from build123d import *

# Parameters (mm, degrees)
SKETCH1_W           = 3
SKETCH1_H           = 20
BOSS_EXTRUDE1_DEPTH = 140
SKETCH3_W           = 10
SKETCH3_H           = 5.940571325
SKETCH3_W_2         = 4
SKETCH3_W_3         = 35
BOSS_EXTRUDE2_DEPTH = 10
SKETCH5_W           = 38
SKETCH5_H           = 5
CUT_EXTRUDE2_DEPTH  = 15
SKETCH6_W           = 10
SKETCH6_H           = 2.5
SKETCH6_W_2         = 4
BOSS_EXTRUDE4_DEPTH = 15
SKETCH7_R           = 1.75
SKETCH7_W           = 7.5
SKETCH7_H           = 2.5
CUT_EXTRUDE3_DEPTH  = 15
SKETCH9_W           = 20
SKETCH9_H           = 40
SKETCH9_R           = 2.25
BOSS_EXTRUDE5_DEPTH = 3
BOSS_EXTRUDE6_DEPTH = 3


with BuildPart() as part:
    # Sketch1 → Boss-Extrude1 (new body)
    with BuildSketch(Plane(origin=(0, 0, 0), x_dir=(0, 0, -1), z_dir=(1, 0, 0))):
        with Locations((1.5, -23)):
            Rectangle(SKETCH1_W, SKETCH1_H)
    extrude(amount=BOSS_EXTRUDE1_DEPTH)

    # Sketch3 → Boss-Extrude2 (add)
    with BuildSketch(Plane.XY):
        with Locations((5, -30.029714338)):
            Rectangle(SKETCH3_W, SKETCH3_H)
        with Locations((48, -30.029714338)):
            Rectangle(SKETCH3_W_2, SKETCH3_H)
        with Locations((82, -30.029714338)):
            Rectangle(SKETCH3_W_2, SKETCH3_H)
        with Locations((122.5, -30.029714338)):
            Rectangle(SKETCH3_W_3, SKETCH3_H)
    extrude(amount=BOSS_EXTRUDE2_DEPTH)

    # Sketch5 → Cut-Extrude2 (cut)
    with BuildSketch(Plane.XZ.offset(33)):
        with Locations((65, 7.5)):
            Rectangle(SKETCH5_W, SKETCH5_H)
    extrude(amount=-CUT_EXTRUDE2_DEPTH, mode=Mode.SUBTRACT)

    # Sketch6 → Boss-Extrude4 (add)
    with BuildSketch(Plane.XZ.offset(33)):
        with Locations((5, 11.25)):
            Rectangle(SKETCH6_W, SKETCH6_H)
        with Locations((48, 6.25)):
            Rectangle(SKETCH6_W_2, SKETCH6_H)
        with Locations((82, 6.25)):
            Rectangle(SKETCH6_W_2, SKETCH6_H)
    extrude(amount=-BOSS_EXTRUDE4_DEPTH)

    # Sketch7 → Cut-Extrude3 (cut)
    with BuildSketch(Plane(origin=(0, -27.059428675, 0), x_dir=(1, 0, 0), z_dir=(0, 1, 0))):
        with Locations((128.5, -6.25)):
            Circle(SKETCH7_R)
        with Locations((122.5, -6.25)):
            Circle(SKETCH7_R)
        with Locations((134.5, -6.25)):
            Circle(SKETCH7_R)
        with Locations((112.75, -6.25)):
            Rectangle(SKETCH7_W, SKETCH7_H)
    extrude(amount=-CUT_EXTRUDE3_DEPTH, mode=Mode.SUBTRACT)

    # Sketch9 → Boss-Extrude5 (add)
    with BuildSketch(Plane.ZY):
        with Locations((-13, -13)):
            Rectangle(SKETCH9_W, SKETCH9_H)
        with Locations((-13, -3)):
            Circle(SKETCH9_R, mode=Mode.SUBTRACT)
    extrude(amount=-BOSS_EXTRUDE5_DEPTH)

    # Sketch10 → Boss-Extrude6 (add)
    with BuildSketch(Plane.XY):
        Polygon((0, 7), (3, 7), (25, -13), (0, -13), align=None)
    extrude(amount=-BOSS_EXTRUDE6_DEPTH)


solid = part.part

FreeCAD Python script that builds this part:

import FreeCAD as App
import Part
import Sketcher

V = App.Vector
Q = App.Units.Quantity

doc = App.newDocument("Part")
params = doc.addObject("Spreadsheet::Sheet", "Params")
for row, (alias, value) in enumerate([
    ("sketch1_width", "20 mm"),
    ("sketch1_height", "3 mm"),
    ("pad1_length", "140 mm"),
    ("sketch2_width", "10 mm"),
    ("sketch2_width2", "4 mm"),
    ("sketch2_width3", "35 mm"),
    ("pad2_length", "10 mm"),
    ("sketch3_width", "38 mm"),
    ("sketch3_height", "5 mm"),
    ("pocket1_length", "15 mm"),
    ("sketch4_width", "10 mm"),
    ("sketch4_width2", "4 mm"),
    ("sketch4_height", "2.5 mm"),
    ("pad3_length", "15 mm"),
    ("sketch5_diameter", "3.5 mm"),
    ("sketch5_width", "7.5 mm"),
    ("sketch5_height", "2.5 mm"),
    ("pocket2_length", "15 mm"),
    ("sketch6_diameter", "4.5 mm"),
    ("sketch6_width", "40 mm"),
    ("sketch6_height", "20 mm"),
    ("pad4_length", "3 mm"),
    ("sketch7_width", "3 mm"),
    ("sketch7_width2", "25 mm"),
    ("sketch7_height", "20 mm"),
    ("pad5_length", "3 mm"),
], start=1):
    params.set(f"A{row}", alias)
    params.set(f"B{row}", "=" + value)
    params.setAlias(f"B{row}", alias)

body = doc.addObject("PartDesign::Body", "Body")

# Sketch on YZ plane
sketch1 = body.newObject("Sketcher::SketchObject", "Sketch")
sketch1.AttachmentSupport = (doc.getObject("YZ_Plane"), [""])
sketch1.MapMode = "FlatFace"
sketch1.addGeometry([
    Part.LineSegment(V(-13, 0, 0), V(-33, 0, 0)),
    Part.LineSegment(V(-33, 0, 0), V(-33, -3, 0)),
    Part.LineSegment(V(-33, -3, 0), V(-13, -3, 0)),
    Part.LineSegment(V(-13, -3, 0), V(-13, 0, 0)),
], False)
sketch1.addConstraint([
    Sketcher.Constraint("Coincident", 0, 2, 1, 1),
    Sketcher.Constraint("Coincident", 1, 2, 2, 1),
    Sketcher.Constraint("Coincident", 2, 2, 3, 1),
    Sketcher.Constraint("Coincident", 3, 2, 0, 1),
    Sketcher.Constraint("Horizontal", 0),
    Sketcher.Constraint("Vertical", 1),
    Sketcher.Constraint("Horizontal", 2),
    Sketcher.Constraint("Vertical", 3),
    Sketcher.Constraint("PointOnObject", 0, 2, -1),
    Sketcher.Constraint("DistanceX", 0, 2, 0, 1, Q("20 mm")),
    Sketcher.Constraint("DistanceY", 1, 2, 1, 1, Q("3 mm")),
    Sketcher.Constraint("DistanceX", 0, 2, -1, 1, Q("33 mm")),
])
sketch1.setExpression("Constraints[9]", "Params.sketch1_width")
sketch1.setExpression("Constraints[10]", "Params.sketch1_height")
pad1 = body.newObject("PartDesign::Pad", "Pad")
pad1.Profile = sketch1
pad1.setExpression("Length", "Params.pad1_length")

# Sketch on XY plane
sketch2 = body.newObject("Sketcher::SketchObject", "Sketch001")
sketch2.AttachmentSupport = (doc.getObject("XY_Plane"), [""])
sketch2.MapMode = "FlatFace"
sketch2.addGeometry([
    Part.LineSegment(V(0, -27.1, 0), V(0, -33, 0)),  # 0
    Part.LineSegment(V(0, -33, 0), V(10, -33, 0)),  # 1
    Part.LineSegment(V(10, -33, 0), V(10, -27.1, 0)),  # 2
    Part.LineSegment(V(10, -27.1, 0), V(0, -27.1, 0)),  # 3
    Part.LineSegment(V(46, -27.1, 0), V(46, -33, 0)),  # 4
    Part.LineSegment(V(46, -33, 0), V(50, -33, 0)),  # 5
    Part.LineSegment(V(50, -33, 0), V(50, -27.1, 0)),  # 6
    Part.LineSegment(V(50, -27.1, 0), V(46, -27.1, 0)),  # 7
    Part.LineSegment(V(80, -27.1, 0), V(80, -33, 0)),  # 8
    Part.LineSegment(V(80, -33, 0), V(84, -33, 0)),  # 9
    Part.LineSegment(V(84, -33, 0), V(84, -27.1, 0)),  # 10
    Part.LineSegment(V(84, -27.1, 0), V(80, -27.1, 0)),  # 11
    Part.LineSegment(V(105, -27.1, 0), V(105, -33, 0)),  # 12
    Part.LineSegment(V(105, -33, 0), V(140, -33, 0)),  # 13
    Part.LineSegment(V(140, -33, 0), V(140, -27.1, 0)),  # 14
    Part.LineSegment(V(140, -27.1, 0), V(105, -27.1, 0)),  # 15
], False)
sketch2.addConstraint([
    Sketcher.Constraint("Coincident", 0, 2, 1, 1),
    Sketcher.Constraint("Coincident", 1, 2, 2, 1),
    Sketcher.Constraint("Coincident", 2, 2, 3, 1),
    Sketcher.Constraint("Coincident", 3, 2, 0, 1),
    Sketcher.Constraint("Coincident", 4, 2, 5, 1),
    Sketcher.Constraint("Coincident", 5, 2, 6, 1),
    Sketcher.Constraint("Coincident", 6, 2, 7, 1),
    Sketcher.Constraint("Coincident", 7, 2, 4, 1),
    Sketcher.Constraint("Coincident", 8, 2, 9, 1),
    Sketcher.Constraint("Coincident", 9, 2, 10, 1),
    Sketcher.Constraint("Coincident", 10, 2, 11, 1),
    Sketcher.Constraint("Coincident", 11, 2, 8, 1),
    Sketcher.Constraint("Coincident", 12, 2, 13, 1),
    Sketcher.Constraint("Coincident", 13, 2, 14, 1),
    Sketcher.Constraint("Coincident", 14, 2, 15, 1),
    Sketcher.Constraint("Coincident", 15, 2, 12, 1),
    Sketcher.Constraint("Vertical", 0),
    Sketcher.Constraint("Horizontal", 1),
    Sketcher.Constraint("Vertical", 2),
    Sketcher.Constraint("Horizontal", 3),
    Sketcher.Constraint("Vertical", 4),
    Sketcher.Constraint("Horizontal", 5),
    Sketcher.Constraint("Vertical", 6),
    Sketcher.Constraint("Horizontal", 7),
    Sketcher.Constraint("Vertical", 8),
    Sketcher.Constraint("Horizontal", 9),
    Sketcher.Constraint("Vertical", 10),
    Sketcher.Constraint("Horizontal", 11),
    Sketcher.Constraint("Vertical", 12),
    Sketcher.Constraint("Horizontal", 13),
    Sketcher.Constraint("Vertical", 14),
    Sketcher.Constraint("Horizontal", 15),
    Sketcher.Constraint("PointOnObject", 0, 2, -2),
    Sketcher.Constraint("Horizontal", 1, 2, 4, 2),
    Sketcher.Constraint("Horizontal", 3, 2, 6, 2),
    Sketcher.Constraint("Horizontal", 5, 2, 8, 2),
    Sketcher.Constraint("Horizontal", 7, 2, 10, 2),
    Sketcher.Constraint("Horizontal", 9, 2, 12, 2),
    Sketcher.Constraint("Horizontal", 11, 2, 14, 2),
    Sketcher.Constraint("Equal", 7, 9),
    Sketcher.Constraint("DistanceX", 1, 1, 1, 2, Q("10 mm")),
    Sketcher.Constraint("DistanceX", 5, 1, 5, 2, Q("4 mm")),
    Sketcher.Constraint("DistanceX", 13, 1, 13, 2, Q("35 mm")),
    Sketcher.Constraint("DistanceY", 0, 2, -1, 1, Q("33 mm")),
    Sketcher.Constraint("DistanceX", -1, 1, 4, 2, Q("46 mm")),
    Sketcher.Constraint("DistanceX", -1, 1, 8, 2, Q("80 mm")),
    Sketcher.Constraint("DistanceX", -1, 1, 12, 2, Q("105 mm")),
    Sketcher.Constraint("DistanceY", 0, 2, 0, 1, Q("5.940571 mm")),
])
sketch2.setExpression("Constraints[40]", "Params.sketch2_width")
sketch2.setExpression("Constraints[41]", "Params.sketch2_width2")
sketch2.setExpression("Constraints[42]", "Params.sketch2_width3")
pad2 = body.newObject("PartDesign::Pad", "Pad001")
pad2.Profile = sketch2
pad2.setExpression("Length", "Params.pad2_length")

# Sketch on XZ plane
sketch3 = body.newObject("Sketcher::SketchObject", "Sketch002")
sketch3.AttachmentSupport = (doc.getObject("XZ_Plane"), [""])
sketch3.MapMode = "FlatFace"
sketch3.AttachmentOffset = App.Placement(V(0, 0, 33), App.Rotation())
sketch3.addGeometry([
    Part.LineSegment(V(46, 10, 0), V(46, 5, 0)),
    Part.LineSegment(V(46, 5, 0), V(84, 5, 0)),
    Part.LineSegment(V(84, 5, 0), V(84, 10, 0)),
    Part.LineSegment(V(84, 10, 0), V(46, 10, 0)),
], False)
sketch3.addConstraint([
    Sketcher.Constraint("Coincident", 0, 2, 1, 1),
    Sketcher.Constraint("Coincident", 1, 2, 2, 1),
    Sketcher.Constraint("Coincident", 2, 2, 3, 1),
    Sketcher.Constraint("Coincident", 3, 2, 0, 1),
    Sketcher.Constraint("Vertical", 0),
    Sketcher.Constraint("Horizontal", 1),
    Sketcher.Constraint("Vertical", 2),
    Sketcher.Constraint("Horizontal", 3),
    Sketcher.Constraint("DistanceX", 1, 1, 1, 2, Q("38 mm")),
    Sketcher.Constraint("DistanceY", 0, 2, 0, 1, Q("5 mm")),
    Sketcher.Constraint("DistanceX", -1, 1, 0, 2, Q("46 mm")),
    Sketcher.Constraint("DistanceY", -1, 1, 0, 2, Q("5 mm")),
])
sketch3.setExpression("Constraints[8]", "Params.sketch3_width")
sketch3.setExpression("Constraints[9]", "Params.sketch3_height")
pocket1 = body.newObject("PartDesign::Pocket", "Pocket")
pocket1.Profile = sketch3
pocket1.setExpression("Length", "Params.pocket1_length")

# Sketch on XZ plane
sketch4 = body.newObject("Sketcher::SketchObject", "Sketch003")
sketch4.AttachmentSupport = (doc.getObject("XZ_Plane"), [""])
sketch4.MapMode = "FlatFace"
sketch4.AttachmentOffset = App.Placement(V(0, 0, 33), App.Rotation())
sketch4.addGeometry([
    Part.LineSegment(V(0, 12.5, 0), V(0, 10, 0)),  # 0
    Part.LineSegment(V(0, 10, 0), V(10, 10, 0)),  # 1
    Part.LineSegment(V(10, 10, 0), V(10, 12.5, 0)),  # 2
    Part.LineSegment(V(10, 12.5, 0), V(0, 12.5, 0)),  # 3
    Part.LineSegment(V(46, 7.5, 0), V(46, 5, 0)),  # 4
    Part.LineSegment(V(46, 5, 0), V(50, 5, 0)),  # 5
    Part.LineSegment(V(50, 5, 0), V(50, 7.5, 0)),  # 6
    Part.LineSegment(V(50, 7.5, 0), V(46, 7.5, 0)),  # 7
    Part.LineSegment(V(80, 7.5, 0), V(80, 5, 0)),  # 8
    Part.LineSegment(V(80, 5, 0), V(84, 5, 0)),  # 9
    Part.LineSegment(V(84, 5, 0), V(84, 7.5, 0)),  # 10
    Part.LineSegment(V(84, 7.5, 0), V(80, 7.5, 0)),  # 11
], False)
sketch4.addConstraint([
    Sketcher.Constraint("Coincident", 0, 2, 1, 1),
    Sketcher.Constraint("Coincident", 1, 2, 2, 1),
    Sketcher.Constraint("Coincident", 2, 2, 3, 1),
    Sketcher.Constraint("Coincident", 3, 2, 0, 1),
    Sketcher.Constraint("Coincident", 4, 2, 5, 1),
    Sketcher.Constraint("Coincident", 5, 2, 6, 1),
    Sketcher.Constraint("Coincident", 6, 2, 7, 1),
    Sketcher.Constraint("Coincident", 7, 2, 4, 1),
    Sketcher.Constraint("Coincident", 8, 2, 9, 1),
    Sketcher.Constraint("Coincident", 9, 2, 10, 1),
    Sketcher.Constraint("Coincident", 10, 2, 11, 1),
    Sketcher.Constraint("Coincident", 11, 2, 8, 1),
    Sketcher.Constraint("Vertical", 0),
    Sketcher.Constraint("Horizontal", 1),
    Sketcher.Constraint("Vertical", 2),
    Sketcher.Constraint("Horizontal", 3),
    Sketcher.Constraint("Vertical", 4),
    Sketcher.Constraint("Horizontal", 5),
    Sketcher.Constraint("Vertical", 6),
    Sketcher.Constraint("Horizontal", 7),
    Sketcher.Constraint("Vertical", 8),
    Sketcher.Constraint("Horizontal", 9),
    Sketcher.Constraint("Vertical", 10),
    Sketcher.Constraint("Horizontal", 11),
    Sketcher.Constraint("PointOnObject", 0, 2, -2),
    Sketcher.Constraint("Horizontal", 5, 2, 8, 2),
    Sketcher.Constraint("Horizontal", 7, 2, 10, 2),
    Sketcher.Constraint("Equal", 7, 9),
    Sketcher.Constraint("Equal", 2, 4),
    Sketcher.Constraint("DistanceX", 1, 1, 1, 2, Q("10 mm")),
    Sketcher.Constraint("DistanceX", 5, 1, 5, 2, Q("4 mm")),
    Sketcher.Constraint("DistanceY", 0, 2, 0, 1, Q("2.5 mm")),
    Sketcher.Constraint("DistanceY", -1, 1, 0, 2, Q("10 mm")),
    Sketcher.Constraint("DistanceX", -1, 1, 4, 2, Q("46 mm")),
    Sketcher.Constraint("DistanceY", -1, 1, 4, 2, Q("5 mm")),
    Sketcher.Constraint("DistanceX", -1, 1, 8, 2, Q("80 mm")),
])
sketch4.setExpression("Constraints[29]", "Params.sketch4_width")
sketch4.setExpression("Constraints[30]", "Params.sketch4_width2")
sketch4.setExpression("Constraints[31]", "Params.sketch4_height")
pad3 = body.newObject("PartDesign::Pad", "Pad002")
pad3.Profile = sketch4
pad3.setExpression("Length", "Params.pad3_length")
pad3.Reversed = True

# Sketch on XZ plane
sketch5 = body.newObject("Sketcher::SketchObject", "Sketch004")
sketch5.AttachmentSupport = (doc.getObject("XZ_Plane"), [""])
sketch5.MapMode = "FlatFace"
sketch5.AttachmentOffset = App.Placement(V(0, 0, 27.059429), App.Rotation())
sketch5.addGeometry([
    Part.Circle(V(128.5, 6.2, 0), V(0, 0, 1), 1.8),  # 0
    Part.Circle(V(122.5, 6.2, 0), V(0, 0, 1), 1.8),  # 1
    Part.Circle(V(134.5, 6.2, 0), V(0, 0, 1), 1.8),  # 2
    Part.LineSegment(V(109, 5, 0), V(109, 7.5, 0)),  # 3
    Part.LineSegment(V(109, 7.5, 0), V(116.5, 7.5, 0)),  # 4
    Part.LineSegment(V(116.5, 7.5, 0), V(116.5, 5, 0)),  # 5
    Part.LineSegment(V(116.5, 5, 0), V(109, 5, 0)),  # 6
], False)
sketch5.addConstraint([
    Sketcher.Constraint("Coincident", 3, 2, 4, 1),
    Sketcher.Constraint("Coincident", 4, 2, 5, 1),
    Sketcher.Constraint("Coincident", 5, 2, 6, 1),
    Sketcher.Constraint("Coincident", 6, 2, 3, 1),
    Sketcher.Constraint("Vertical", 3),
    Sketcher.Constraint("Horizontal", 4),
    Sketcher.Constraint("Vertical", 5),
    Sketcher.Constraint("Horizontal", 6),
    Sketcher.Constraint("Equal", 0, 1),
    Sketcher.Constraint("Equal", 1, 2),
    Sketcher.Constraint("Horizontal", 0, 3, 1, 3),
    Sketcher.Constraint("Horizontal", 1, 3, 2, 3),
    Sketcher.Constraint("Diameter", 0, Q("3.5 mm")),
    Sketcher.Constraint("DistanceX", 4, 1, 4, 2, Q("7.5 mm")),
    Sketcher.Constraint("DistanceY", 3, 1, 3, 2, Q("2.5 mm")),
    Sketcher.Constraint("DistanceX", -1, 1, 3, 2, Q("109 mm")),
    Sketcher.Constraint("DistanceY", -1, 1, 5, 2, Q("5 mm")),
    Sketcher.Constraint("DistanceX", 1, 3, 0, 3, Q("6 mm")),
    Sketcher.Constraint("DistanceX", 0, 3, 2, 3, Q("6 mm")),
    Sketcher.Constraint("DistanceX", 4, 2, 1, 3, Q("6 mm")),
    Sketcher.Constraint("DistanceY", -1, 1, 0, 3, Q("6.25 mm")),
])
sketch5.setExpression("Constraints[12]", "Params.sketch5_diameter")
sketch5.setExpression("Constraints[13]", "Params.sketch5_width")
sketch5.setExpression("Constraints[14]", "Params.sketch5_height")
pocket2 = body.newObject("PartDesign::Pocket", "Pocket001")
pocket2.Profile = sketch5
pocket2.setExpression("Length", "Params.pocket2_length")
pocket2.Reversed = True

# Sketch on YZ plane
sketch6 = body.newObject("Sketcher::SketchObject", "Sketch005")
sketch6.AttachmentSupport = (doc.getObject("YZ_Plane"), [""])
sketch6.MapMode = "FlatFace"
sketch6.addGeometry([
    Part.LineSegment(V(7, -23, 0), V(-33, -23, 0)),  # 0
    Part.LineSegment(V(-33, -23, 0), V(-33, -3, 0)),  # 1
    Part.LineSegment(V(-33, -3, 0), V(7, -3, 0)),  # 2
    Part.LineSegment(V(7, -3, 0), V(7, -23, 0)),  # 3
    Part.Circle(V(-3, -13, 0), V(0, 0, 1), 2.2),  # 4
], False)
sketch6.addConstraint([
    Sketcher.Constraint("Coincident", 0, 2, 1, 1),
    Sketcher.Constraint("Coincident", 1, 2, 2, 1),
    Sketcher.Constraint("Coincident", 2, 2, 3, 1),
    Sketcher.Constraint("Coincident", 3, 2, 0, 1),
    Sketcher.Constraint("Horizontal", 0),
    Sketcher.Constraint("Vertical", 1),
    Sketcher.Constraint("Horizontal", 2),
    Sketcher.Constraint("Vertical", 3),
    Sketcher.Constraint("Diameter", 4, Q("4.5 mm")),
    Sketcher.Constraint("DistanceX", 0, 2, 0, 1, Q("40 mm")),
    Sketcher.Constraint("DistanceY", 1, 1, 1, 2, Q("20 mm")),
    Sketcher.Constraint("DistanceX", 4, 3, -1, 1, Q("3 mm")),
    Sketcher.Constraint("DistanceY", 4, 3, -1, 1, Q("13 mm")),
    Sketcher.Constraint("DistanceX", 0, 2, -1, 1, Q("33 mm")),
    Sketcher.Constraint("DistanceY", 0, 2, -1, 1, Q("23 mm")),
])
sketch6.setExpression("Constraints[8]", "Params.sketch6_diameter")
sketch6.setExpression("Constraints[9]", "Params.sketch6_width")
sketch6.setExpression("Constraints[10]", "Params.sketch6_height")
pad4 = body.newObject("PartDesign::Pad", "Pad003")
pad4.Profile = sketch6
pad4.setExpression("Length", "Params.pad4_length")

# Sketch on XY plane
sketch7 = body.newObject("Sketcher::SketchObject", "Sketch006")
sketch7.AttachmentSupport = (doc.getObject("XY_Plane"), [""])
sketch7.MapMode = "FlatFace"
sketch7.addGeometry([
    Part.LineSegment(V(3, 7, 0), V(0, 7, 0)),
    Part.LineSegment(V(0, 7, 0), V(0, -13, 0)),
    Part.LineSegment(V(0, -13, 0), V(25, -13, 0)),
    Part.LineSegment(V(25, -13, 0), V(3, 7, 0)),
], False)
sketch7.addConstraint([
    Sketcher.Constraint("Coincident", 0, 2, 1, 1),
    Sketcher.Constraint("Coincident", 1, 2, 2, 1),
    Sketcher.Constraint("Coincident", 2, 2, 3, 1),
    Sketcher.Constraint("Coincident", 3, 2, 0, 1),
    Sketcher.Constraint("Horizontal", 0),
    Sketcher.Constraint("Vertical", 1),
    Sketcher.Constraint("Horizontal", 2),
    Sketcher.Constraint("PointOnObject", 0, 2, -2),
    Sketcher.Constraint("DistanceX", 0, 2, 0, 1, Q("3 mm")),
    Sketcher.Constraint("DistanceX", 2, 1, 2, 2, Q("25 mm")),
    Sketcher.Constraint("DistanceY", 1, 2, 1, 1, Q("20 mm")),
    Sketcher.Constraint("DistanceY", -1, 1, 0, 2, Q("7 mm")),
])
sketch7.setExpression("Constraints[8]", "Params.sketch7_width")
sketch7.setExpression("Constraints[9]", "Params.sketch7_width2")
sketch7.setExpression("Constraints[10]", "Params.sketch7_height")
pad5 = body.newObject("PartDesign::Pad", "Pad004")
pad5.Profile = sketch7
pad5.setExpression("Length", "Params.pad5_length")
pad5.Reversed = True

doc.recompute()
